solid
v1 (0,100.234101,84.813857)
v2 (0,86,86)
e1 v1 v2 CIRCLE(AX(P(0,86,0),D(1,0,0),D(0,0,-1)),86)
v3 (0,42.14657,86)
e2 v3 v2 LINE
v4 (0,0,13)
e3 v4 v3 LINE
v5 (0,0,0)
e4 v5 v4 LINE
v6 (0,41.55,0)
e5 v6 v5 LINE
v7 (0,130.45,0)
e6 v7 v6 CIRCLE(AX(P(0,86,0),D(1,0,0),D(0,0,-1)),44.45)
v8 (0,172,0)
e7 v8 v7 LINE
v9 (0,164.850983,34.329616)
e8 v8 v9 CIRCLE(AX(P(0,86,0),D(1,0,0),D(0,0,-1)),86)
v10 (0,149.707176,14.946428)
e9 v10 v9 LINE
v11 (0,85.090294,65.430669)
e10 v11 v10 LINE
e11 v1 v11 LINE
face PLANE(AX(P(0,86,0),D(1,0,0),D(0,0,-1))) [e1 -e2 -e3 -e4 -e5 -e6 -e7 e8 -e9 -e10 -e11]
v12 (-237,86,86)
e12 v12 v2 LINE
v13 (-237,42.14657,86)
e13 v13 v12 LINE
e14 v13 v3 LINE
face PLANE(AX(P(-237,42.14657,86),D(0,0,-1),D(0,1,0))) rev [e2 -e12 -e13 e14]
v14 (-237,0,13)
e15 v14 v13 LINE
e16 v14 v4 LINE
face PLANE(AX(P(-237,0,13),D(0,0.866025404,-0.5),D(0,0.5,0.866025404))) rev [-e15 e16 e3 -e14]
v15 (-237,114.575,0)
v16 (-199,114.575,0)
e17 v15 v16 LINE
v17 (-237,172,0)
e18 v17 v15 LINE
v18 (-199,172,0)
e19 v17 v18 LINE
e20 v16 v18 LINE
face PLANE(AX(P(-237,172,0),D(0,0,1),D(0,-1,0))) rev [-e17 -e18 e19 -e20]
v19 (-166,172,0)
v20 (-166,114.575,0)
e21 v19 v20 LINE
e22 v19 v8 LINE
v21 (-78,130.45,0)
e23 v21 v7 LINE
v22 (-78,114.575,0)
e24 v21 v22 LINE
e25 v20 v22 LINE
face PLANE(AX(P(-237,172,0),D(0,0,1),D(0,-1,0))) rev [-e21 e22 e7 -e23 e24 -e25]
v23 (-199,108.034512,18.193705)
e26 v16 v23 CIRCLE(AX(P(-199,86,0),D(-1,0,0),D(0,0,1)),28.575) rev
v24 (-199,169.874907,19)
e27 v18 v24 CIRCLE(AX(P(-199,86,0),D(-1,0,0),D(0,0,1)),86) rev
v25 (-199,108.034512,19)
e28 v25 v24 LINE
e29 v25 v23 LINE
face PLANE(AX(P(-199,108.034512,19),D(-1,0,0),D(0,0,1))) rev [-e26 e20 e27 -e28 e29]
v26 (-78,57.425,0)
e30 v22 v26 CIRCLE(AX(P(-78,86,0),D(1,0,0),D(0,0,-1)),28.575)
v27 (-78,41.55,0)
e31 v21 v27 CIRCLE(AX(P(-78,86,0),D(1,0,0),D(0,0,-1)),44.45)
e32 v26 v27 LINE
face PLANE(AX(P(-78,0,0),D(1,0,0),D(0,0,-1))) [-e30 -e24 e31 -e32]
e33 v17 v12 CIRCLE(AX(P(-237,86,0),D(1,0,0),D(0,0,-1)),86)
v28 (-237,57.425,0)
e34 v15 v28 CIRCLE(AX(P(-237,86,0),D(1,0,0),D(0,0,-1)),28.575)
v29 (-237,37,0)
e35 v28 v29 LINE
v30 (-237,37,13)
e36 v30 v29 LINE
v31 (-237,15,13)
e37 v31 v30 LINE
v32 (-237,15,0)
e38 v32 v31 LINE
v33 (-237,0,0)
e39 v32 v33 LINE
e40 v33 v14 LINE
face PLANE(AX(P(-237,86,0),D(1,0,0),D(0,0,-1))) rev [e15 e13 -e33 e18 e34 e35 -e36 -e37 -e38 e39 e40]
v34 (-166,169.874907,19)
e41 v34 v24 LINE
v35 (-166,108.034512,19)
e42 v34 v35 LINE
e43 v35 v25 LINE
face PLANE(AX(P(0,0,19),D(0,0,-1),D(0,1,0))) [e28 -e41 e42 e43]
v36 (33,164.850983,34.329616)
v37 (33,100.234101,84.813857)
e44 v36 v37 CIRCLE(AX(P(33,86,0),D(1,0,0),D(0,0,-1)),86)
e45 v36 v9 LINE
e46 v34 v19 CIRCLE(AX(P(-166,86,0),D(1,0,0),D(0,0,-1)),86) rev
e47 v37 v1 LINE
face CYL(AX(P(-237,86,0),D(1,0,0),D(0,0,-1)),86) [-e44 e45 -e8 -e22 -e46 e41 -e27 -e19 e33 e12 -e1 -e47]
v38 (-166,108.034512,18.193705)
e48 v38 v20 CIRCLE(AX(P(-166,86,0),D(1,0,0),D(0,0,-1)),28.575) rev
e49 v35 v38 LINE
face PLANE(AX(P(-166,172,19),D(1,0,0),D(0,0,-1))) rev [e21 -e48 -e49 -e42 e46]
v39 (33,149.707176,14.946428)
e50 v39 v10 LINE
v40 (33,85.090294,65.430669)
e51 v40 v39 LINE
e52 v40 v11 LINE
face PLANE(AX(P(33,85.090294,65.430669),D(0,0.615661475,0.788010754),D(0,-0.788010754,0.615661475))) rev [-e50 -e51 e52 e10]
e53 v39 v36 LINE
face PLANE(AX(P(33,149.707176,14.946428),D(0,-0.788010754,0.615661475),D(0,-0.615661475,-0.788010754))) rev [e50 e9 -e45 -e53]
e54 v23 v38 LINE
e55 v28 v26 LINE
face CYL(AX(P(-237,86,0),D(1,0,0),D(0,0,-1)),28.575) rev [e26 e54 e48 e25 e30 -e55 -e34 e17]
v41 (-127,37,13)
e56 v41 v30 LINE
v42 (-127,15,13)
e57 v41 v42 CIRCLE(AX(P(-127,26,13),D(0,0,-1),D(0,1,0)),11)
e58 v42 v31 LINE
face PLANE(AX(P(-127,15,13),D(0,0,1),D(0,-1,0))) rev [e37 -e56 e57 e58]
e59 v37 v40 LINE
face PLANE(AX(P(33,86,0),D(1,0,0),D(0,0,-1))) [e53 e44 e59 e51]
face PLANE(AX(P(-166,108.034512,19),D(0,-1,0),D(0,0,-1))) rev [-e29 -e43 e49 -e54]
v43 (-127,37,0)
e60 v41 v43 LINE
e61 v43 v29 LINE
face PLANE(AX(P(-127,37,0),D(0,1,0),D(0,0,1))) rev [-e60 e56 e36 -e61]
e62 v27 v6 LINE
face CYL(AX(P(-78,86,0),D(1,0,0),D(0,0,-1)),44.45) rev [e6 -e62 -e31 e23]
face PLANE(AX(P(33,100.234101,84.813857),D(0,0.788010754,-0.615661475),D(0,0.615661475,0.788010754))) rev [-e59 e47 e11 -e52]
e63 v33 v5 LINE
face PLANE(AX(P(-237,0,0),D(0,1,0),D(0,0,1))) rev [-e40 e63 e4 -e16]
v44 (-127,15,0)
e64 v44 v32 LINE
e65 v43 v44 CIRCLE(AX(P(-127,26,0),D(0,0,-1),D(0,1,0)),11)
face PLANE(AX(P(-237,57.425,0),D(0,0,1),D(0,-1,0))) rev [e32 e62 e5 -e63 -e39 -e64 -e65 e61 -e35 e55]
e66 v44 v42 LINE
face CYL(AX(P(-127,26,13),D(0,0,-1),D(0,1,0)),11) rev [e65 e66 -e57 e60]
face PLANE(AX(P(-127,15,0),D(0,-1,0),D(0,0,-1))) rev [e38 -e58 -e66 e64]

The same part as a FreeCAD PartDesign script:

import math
import FreeCAD as App
import Part
import Sketcher

V = App.Vector
Q = App.Units.Quantity

doc = App.newDocument("Part")
params = doc.addObject("Spreadsheet::Sheet", "Params")
for row, (alias, value) in enumerate([
    ("sketch1_radius", "86 mm"),
    ("sketch1_height", "13 mm"),
    ("pad1_length", "237 mm"),
    ("sketch2_radius", "44.45 mm"),
    ("pocket1_length", "78 mm"),
    ("sketch3_width", "22 mm"),
    ("sketch3_height", "13 mm"),
    ("pocket2_length", "110 mm"),
    ("sketch4_diameter", "22 mm"),
    ("pocket3_length", "13 mm"),
    ("sketch5_width", "33 mm"),
    ("pocket4_length", "19 mm"),
    ("sketch6_radius", "86 mm"),
    ("sketch6_length", "82 mm"),
    ("pad2_length", "33 mm"),
], start=1):
    params.set(f"A{row}", alias)
    params.set(f"B{row}", "=" + value)
    params.setAlias(f"B{row}", alias)

body = doc.addObject("PartDesign::Body", "Body")

# Sketch on YZ plane
sketch1 = body.newObject("Sketcher::SketchObject", "Sketch")
sketch1.AttachmentSupport = (doc.getObject("YZ_Plane"), [""])
sketch1.MapMode = "FlatFace"
sketch1.addGeometry([
    Part.LineSegment(V(115, 0, 0), V(172, 0, 0)),  # 0
    Part.ArcOfCircle(Part.Circle(V(86, 0, 0), V(0, 0, 1), 86), math.radians(0), math.radians(90)),  # 1
    Part.LineSegment(V(86, 86, 0), V(42, 86, 0)),  # 2
    Part.LineSegment(V(42, 86, 0), V(0, 13, 0)),  # 3
    Part.LineSegment(V(0, 13, 0), V(0, 0, 0)),  # 4
    Part.LineSegment(V(0, 0, 0), V(57, 0, 0)),  # 5
    Part.ArcOfCircle(Part.Circle(V(86, 0, 0), V(0, 0, 1), 29), math.radians(0), math.radians(180)),  # 6
], False)
sketch1.addConstraint([
    Sketcher.Constraint("Coincident", 0, 2, 1, 1),
    Sketcher.Constraint("Tangent", 1, 2, 2, 1),
    Sketcher.Constraint("Coincident", 2, 2, 3, 1),
    Sketcher.Constraint("Coincident", 3, 2, 4, 1),
    Sketcher.Constraint("Coincident", 4, 2, 5, 1),
    Sketcher.Constraint("Coincident", 5, 2, 6, 2),
    Sketcher.Constraint("Coincident", 6, 1, 0, 1),
    Sketcher.Constraint("Horizontal", 0),
    Sketcher.Constraint("Horizontal", 2),
    Sketcher.Constraint("Vertical", 4),
    Sketcher.Constraint("Horizontal", 5),
    Sketcher.Constraint("Coincident", 4, 2, -1, 1),
    Sketcher.Constraint("Coincident", 6, 3, 1, 3),
    Sketcher.Constraint("PointOnObject", 1, 3, -1),
    Sketcher.Constraint("PointOnObject", 0, 2, -1),
    Sketcher.Constraint("Equal", 0, 5),
    Sketcher.Constraint("Radius", 1, 86.0),
    Sketcher.Constraint("DistanceY", 4, 2, 4, 1, 13.0),
    Sketcher.Constraint("Angle", 3, Q("-120 deg")),
    Sketcher.Constraint("Radius", 6, 28.575),
])
sketch1.setExpression("Constraints[16]", "Params.sketch1_radius")
sketch1.setExpression("Constraints[17]", "Params.sketch1_height")
pad1 = body.newObject("PartDesign::Pad", "Pad")
pad1.Profile = sketch1
pad1.setExpression("Length", "Params.pad1_length")
pad1.Reversed = True

# Sketch on YZ plane
sketch2 = body.newObject("Sketcher::SketchObject", "Sketch001")
sketch2.AttachmentSupport = (doc.getObject("YZ_Plane"), [""])
sketch2.MapMode = "FlatFace"
sketch2.addGeometry([
    Part.LineSegment(V(115, 0, 0), V(130, 0, 0)),
    Part.ArcOfCircle(Part.Circle(V(86, 0, 0), V(0, 0, 1), 44), math.radians(0), math.radians(180)),
    Part.LineSegment(V(42, 0, 0), V(57, 0, 0)),
    Part.ArcOfCircle(Part.Circle(V(86, 0, 0), V(0, 0, 1), 29), math.radians(0), math.radians(180)),
], False)
sketch2.addConstraint([
    Sketcher.Constraint("Coincident", 0, 2, 1, 1),
    Sketcher.Constraint("Coincident", 1, 2, 2, 1),
    Sketcher.Constraint("Coincident", 2, 2, 3, 2),
    Sketcher.Constraint("Coincident", 3, 1, 0, 1),
    Sketcher.Constraint("Horizontal", 0),
    Sketcher.Constraint("Horizontal", 2),
    Sketcher.Constraint("Coincident", 3, 3, 1, 3),
    Sketcher.Constraint("PointOnObject", 1, 3, -1),
    Sketcher.Constraint("PointOnObject", 0, 2, -1),
    Sketcher.Constraint("PointOnObject", 1, 2, -1),
    Sketcher.Constraint("Radius", 1, 44.45),
    Sketcher.Constraint("DistanceX", -1, 1, 1, 3, 86.0),
    Sketcher.Constraint("Radius", 3, 28.575),
])
sketch2.setExpression("Constraints[10]", "Params.sketch2_radius")
pocket1 = body.newObject("PartDesign::Pocket", "Pocket")
pocket1.Profile = sketch2
pocket1.setExpression("Length", "Params.pocket1_length")

# Sketch on YZ plane
sketch3 = body.newObject("Sketcher::SketchObject", "Sketch002")
sketch3.AttachmentSupport = (doc.getObject("YZ_Plane"), [""])
sketch3.MapMode = "FlatFace"
sketch3.AttachmentOffset = App.Placement(V(0, 0, -237), App.Rotation())
sketch3.addGeometry([
    Part.LineSegment(V(37, 0, 0), V(15, 0, 0)),
    Part.LineSegment(V(15, 0, 0), V(15, 13, 0)),
    Part.LineSegment(V(15, 13, 0), V(37, 13, 0)),
    Part.LineSegment(V(37, 13, 0), V(37, 0, 0)),
], False)
sketch3.addConstraint([
    Sketcher.Constraint("Coincident", 0, 2, 1, 1),
    Sketcher.Constraint("Coincident", 1, 2, 2, 1),
    Sketcher.Constraint("Coincident", 2, 2, 3, 1),
    Sketcher.Constraint("Coincident", 3, 2, 0, 1),
    Sketcher.Constraint("Horizontal", 0),
    Sketcher.Constraint("Vertical", 1),
    Sketcher.Constraint("Horizontal", 2),
    Sketcher.Constraint("Vertical", 3),
    Sketcher.Constraint("PointOnObject", 0, 2, -1),
    Sketcher.Constraint("DistanceX", 0, 2, 0, 1, 22.0),
    Sketcher.Constraint("DistanceY", 1, 1, 1, 2, 13.0),
    Sketcher.Constraint("DistanceX", -1, 1, 0, 2, 15.0),
])
sketch3.setExpression("Constraints[9]", "Params.sketch3_width")
sketch3.setExpression("Constraints[10]", "Params.sketch3_height")
pocket2 = body.newObject("PartDesign::Pocket", "Pocket001")
pocket2.Profile = sketch3
pocket2.setExpression("Length", "Params.pocket2_length")
pocket2.Reversed = True

# Sketch on XY plane
sketch4 = body.newObject("Sketcher::SketchObject", "Sketch003")
sketch4.AttachmentSupport = (doc.getObject("XY_Plane"), [""])
sketch4.MapMode = "FlatFace"
sketch4.addGeometry(Part.Circle(V(-127, 26, 0), V(0, 0, 1), 11), False)
sketch4.addConstraint([
    Sketcher.Constraint("Diameter", 0, 22.0),
    Sketcher.Constraint("DistanceX", 0, 3, -1, 1, 127.0),
    Sketcher.Constraint("DistanceY", -1, 1, 0, 3, 26.0),
])
sketch4.setExpression("Constraints[0]", "Params.sketch4_diameter")
pocket3 = body.newObject("PartDesign::Pocket", "Pocket002")
pocket3.Profile = sketch4
pocket3.setExpression("Length", "Params.pocket3_length")
pocket3.Reversed = True

# Sketch on XY plane
sketch5 = body.newObject("Sketcher::SketchObject", "Sketch004")
sketch5.AttachmentSupport = (doc.getObject("XY_Plane"), [""])
sketch5.MapMode = "FlatFace"
sketch5.addGeometry([
    Part.LineSegment(V(-166, 172, 0), V(-166, 108, 0)),
    Part.LineSegment(V(-166, 108, 0), V(-199, 108, 0)),
    Part.LineSegment(V(-199, 108, 0), V(-199, 172, 0)),
    Part.LineSegment(V(-199, 172, 0), V(-166, 172, 0)),
], False)
sketch5.addConstraint([
    Sketcher.Constraint("Coincident", 0, 2, 1, 1),
    Sketcher.Constraint("Coincident", 1, 2, 2, 1),
    Sketcher.Constraint("Coincident", 2, 2, 3, 1),
    Sketcher.Constraint("Coincident", 3, 2, 0, 1),
    Sketcher.Constraint("Vertical", 0),
    Sketcher.Constraint("Horizontal", 1),
    Sketcher.Constraint("Vertical", 2),
    Sketcher.Constraint("Horizontal", 3),
    Sketcher.Constraint("DistanceX", 1, 2, 1, 1, 33.0),
    Sketcher.Constraint("DistanceX", 0, 2, -1, 1, 166.0),
    Sketcher.Constraint("DistanceY", -1, 1, 2, 2, 172.0),
    Sketcher.Constraint("DistanceY", 0, 2, 0, 1, 63.965488),
])
sketch5.setExpression("Constraints[8]", "Params.sketch5_width")
pocket4 = body.newObject("PartDesign::Pocket", "Pocket003")
pocket4.Profile = sketch5
pocket4.setExpression("Length", "Params.pocket4_length")
pocket4.Reversed = True

# Sketch on YZ plane
sketch6 = body.newObject("Sketcher::SketchObject", "Sketch005")
sketch6.AttachmentSupport = (doc.getObject("YZ_Plane"), [""])
sketch6.MapMode = "FlatFace"
sketch6.AttachmentOffset = App.Placement(V(0, 0, 33), App.Rotation())
sketch6.addGeometry([
    Part.LineSegment(V(100, 85, 0), V(85, 65, 0)),
    Part.LineSegment(V(85, 65, 0), V(150, 15, 0)),
    Part.LineSegment(V(150, 15, 0), V(165, 34, 0)),
    Part.ArcOfCircle(Part.Circle(V(86, 0, 0), V(0, 0, 1), 86), math.radians(24), math.radians(80)),
], False)
sketch6.addConstraint([
    Sketcher.Constraint("Coincident", 0, 2, 1, 1),
    Sketcher.Constraint("Coincident", 1, 2, 2, 1),
    Sketcher.Constraint("Coincident", 2, 2, 3, 1),
    Sketcher.Constraint("Coincident", 3, 2, 0, 1),
    Sketcher.Constraint("PointOnObject", 3, 3, -1),
    Sketcher.Constraint("Perpendicular", 0, 1),
    Sketcher.Constraint("Perpendicular", 1, 2),
    Sketcher.Constraint("Equal", 0, 2),
    Sketcher.Constraint("Radius", 3, 86.0),
    Sketcher.Constraint("Angle", 0, Q("-128 deg")),
    Sketcher.Constraint("Distance", 1, 82.0),
    Sketcher.Constraint("DistanceX", -1, 1, 3, 3, 86.0),
    Sketcher.Constraint("Distance", 0, 24.597619),
])
sketch6.setExpression("Constraints[8]", "Params.sketch6_radius")
sketch6.setExpression("Constraints[10]", "Params.sketch6_length")
pad2 = body.newObject("PartDesign::Pad", "Pad001")
pad2.Profile = sketch6
pad2.setExpression("Length", "Params.pad2_length")
pad2.Reversed = True

doc.recompute()
